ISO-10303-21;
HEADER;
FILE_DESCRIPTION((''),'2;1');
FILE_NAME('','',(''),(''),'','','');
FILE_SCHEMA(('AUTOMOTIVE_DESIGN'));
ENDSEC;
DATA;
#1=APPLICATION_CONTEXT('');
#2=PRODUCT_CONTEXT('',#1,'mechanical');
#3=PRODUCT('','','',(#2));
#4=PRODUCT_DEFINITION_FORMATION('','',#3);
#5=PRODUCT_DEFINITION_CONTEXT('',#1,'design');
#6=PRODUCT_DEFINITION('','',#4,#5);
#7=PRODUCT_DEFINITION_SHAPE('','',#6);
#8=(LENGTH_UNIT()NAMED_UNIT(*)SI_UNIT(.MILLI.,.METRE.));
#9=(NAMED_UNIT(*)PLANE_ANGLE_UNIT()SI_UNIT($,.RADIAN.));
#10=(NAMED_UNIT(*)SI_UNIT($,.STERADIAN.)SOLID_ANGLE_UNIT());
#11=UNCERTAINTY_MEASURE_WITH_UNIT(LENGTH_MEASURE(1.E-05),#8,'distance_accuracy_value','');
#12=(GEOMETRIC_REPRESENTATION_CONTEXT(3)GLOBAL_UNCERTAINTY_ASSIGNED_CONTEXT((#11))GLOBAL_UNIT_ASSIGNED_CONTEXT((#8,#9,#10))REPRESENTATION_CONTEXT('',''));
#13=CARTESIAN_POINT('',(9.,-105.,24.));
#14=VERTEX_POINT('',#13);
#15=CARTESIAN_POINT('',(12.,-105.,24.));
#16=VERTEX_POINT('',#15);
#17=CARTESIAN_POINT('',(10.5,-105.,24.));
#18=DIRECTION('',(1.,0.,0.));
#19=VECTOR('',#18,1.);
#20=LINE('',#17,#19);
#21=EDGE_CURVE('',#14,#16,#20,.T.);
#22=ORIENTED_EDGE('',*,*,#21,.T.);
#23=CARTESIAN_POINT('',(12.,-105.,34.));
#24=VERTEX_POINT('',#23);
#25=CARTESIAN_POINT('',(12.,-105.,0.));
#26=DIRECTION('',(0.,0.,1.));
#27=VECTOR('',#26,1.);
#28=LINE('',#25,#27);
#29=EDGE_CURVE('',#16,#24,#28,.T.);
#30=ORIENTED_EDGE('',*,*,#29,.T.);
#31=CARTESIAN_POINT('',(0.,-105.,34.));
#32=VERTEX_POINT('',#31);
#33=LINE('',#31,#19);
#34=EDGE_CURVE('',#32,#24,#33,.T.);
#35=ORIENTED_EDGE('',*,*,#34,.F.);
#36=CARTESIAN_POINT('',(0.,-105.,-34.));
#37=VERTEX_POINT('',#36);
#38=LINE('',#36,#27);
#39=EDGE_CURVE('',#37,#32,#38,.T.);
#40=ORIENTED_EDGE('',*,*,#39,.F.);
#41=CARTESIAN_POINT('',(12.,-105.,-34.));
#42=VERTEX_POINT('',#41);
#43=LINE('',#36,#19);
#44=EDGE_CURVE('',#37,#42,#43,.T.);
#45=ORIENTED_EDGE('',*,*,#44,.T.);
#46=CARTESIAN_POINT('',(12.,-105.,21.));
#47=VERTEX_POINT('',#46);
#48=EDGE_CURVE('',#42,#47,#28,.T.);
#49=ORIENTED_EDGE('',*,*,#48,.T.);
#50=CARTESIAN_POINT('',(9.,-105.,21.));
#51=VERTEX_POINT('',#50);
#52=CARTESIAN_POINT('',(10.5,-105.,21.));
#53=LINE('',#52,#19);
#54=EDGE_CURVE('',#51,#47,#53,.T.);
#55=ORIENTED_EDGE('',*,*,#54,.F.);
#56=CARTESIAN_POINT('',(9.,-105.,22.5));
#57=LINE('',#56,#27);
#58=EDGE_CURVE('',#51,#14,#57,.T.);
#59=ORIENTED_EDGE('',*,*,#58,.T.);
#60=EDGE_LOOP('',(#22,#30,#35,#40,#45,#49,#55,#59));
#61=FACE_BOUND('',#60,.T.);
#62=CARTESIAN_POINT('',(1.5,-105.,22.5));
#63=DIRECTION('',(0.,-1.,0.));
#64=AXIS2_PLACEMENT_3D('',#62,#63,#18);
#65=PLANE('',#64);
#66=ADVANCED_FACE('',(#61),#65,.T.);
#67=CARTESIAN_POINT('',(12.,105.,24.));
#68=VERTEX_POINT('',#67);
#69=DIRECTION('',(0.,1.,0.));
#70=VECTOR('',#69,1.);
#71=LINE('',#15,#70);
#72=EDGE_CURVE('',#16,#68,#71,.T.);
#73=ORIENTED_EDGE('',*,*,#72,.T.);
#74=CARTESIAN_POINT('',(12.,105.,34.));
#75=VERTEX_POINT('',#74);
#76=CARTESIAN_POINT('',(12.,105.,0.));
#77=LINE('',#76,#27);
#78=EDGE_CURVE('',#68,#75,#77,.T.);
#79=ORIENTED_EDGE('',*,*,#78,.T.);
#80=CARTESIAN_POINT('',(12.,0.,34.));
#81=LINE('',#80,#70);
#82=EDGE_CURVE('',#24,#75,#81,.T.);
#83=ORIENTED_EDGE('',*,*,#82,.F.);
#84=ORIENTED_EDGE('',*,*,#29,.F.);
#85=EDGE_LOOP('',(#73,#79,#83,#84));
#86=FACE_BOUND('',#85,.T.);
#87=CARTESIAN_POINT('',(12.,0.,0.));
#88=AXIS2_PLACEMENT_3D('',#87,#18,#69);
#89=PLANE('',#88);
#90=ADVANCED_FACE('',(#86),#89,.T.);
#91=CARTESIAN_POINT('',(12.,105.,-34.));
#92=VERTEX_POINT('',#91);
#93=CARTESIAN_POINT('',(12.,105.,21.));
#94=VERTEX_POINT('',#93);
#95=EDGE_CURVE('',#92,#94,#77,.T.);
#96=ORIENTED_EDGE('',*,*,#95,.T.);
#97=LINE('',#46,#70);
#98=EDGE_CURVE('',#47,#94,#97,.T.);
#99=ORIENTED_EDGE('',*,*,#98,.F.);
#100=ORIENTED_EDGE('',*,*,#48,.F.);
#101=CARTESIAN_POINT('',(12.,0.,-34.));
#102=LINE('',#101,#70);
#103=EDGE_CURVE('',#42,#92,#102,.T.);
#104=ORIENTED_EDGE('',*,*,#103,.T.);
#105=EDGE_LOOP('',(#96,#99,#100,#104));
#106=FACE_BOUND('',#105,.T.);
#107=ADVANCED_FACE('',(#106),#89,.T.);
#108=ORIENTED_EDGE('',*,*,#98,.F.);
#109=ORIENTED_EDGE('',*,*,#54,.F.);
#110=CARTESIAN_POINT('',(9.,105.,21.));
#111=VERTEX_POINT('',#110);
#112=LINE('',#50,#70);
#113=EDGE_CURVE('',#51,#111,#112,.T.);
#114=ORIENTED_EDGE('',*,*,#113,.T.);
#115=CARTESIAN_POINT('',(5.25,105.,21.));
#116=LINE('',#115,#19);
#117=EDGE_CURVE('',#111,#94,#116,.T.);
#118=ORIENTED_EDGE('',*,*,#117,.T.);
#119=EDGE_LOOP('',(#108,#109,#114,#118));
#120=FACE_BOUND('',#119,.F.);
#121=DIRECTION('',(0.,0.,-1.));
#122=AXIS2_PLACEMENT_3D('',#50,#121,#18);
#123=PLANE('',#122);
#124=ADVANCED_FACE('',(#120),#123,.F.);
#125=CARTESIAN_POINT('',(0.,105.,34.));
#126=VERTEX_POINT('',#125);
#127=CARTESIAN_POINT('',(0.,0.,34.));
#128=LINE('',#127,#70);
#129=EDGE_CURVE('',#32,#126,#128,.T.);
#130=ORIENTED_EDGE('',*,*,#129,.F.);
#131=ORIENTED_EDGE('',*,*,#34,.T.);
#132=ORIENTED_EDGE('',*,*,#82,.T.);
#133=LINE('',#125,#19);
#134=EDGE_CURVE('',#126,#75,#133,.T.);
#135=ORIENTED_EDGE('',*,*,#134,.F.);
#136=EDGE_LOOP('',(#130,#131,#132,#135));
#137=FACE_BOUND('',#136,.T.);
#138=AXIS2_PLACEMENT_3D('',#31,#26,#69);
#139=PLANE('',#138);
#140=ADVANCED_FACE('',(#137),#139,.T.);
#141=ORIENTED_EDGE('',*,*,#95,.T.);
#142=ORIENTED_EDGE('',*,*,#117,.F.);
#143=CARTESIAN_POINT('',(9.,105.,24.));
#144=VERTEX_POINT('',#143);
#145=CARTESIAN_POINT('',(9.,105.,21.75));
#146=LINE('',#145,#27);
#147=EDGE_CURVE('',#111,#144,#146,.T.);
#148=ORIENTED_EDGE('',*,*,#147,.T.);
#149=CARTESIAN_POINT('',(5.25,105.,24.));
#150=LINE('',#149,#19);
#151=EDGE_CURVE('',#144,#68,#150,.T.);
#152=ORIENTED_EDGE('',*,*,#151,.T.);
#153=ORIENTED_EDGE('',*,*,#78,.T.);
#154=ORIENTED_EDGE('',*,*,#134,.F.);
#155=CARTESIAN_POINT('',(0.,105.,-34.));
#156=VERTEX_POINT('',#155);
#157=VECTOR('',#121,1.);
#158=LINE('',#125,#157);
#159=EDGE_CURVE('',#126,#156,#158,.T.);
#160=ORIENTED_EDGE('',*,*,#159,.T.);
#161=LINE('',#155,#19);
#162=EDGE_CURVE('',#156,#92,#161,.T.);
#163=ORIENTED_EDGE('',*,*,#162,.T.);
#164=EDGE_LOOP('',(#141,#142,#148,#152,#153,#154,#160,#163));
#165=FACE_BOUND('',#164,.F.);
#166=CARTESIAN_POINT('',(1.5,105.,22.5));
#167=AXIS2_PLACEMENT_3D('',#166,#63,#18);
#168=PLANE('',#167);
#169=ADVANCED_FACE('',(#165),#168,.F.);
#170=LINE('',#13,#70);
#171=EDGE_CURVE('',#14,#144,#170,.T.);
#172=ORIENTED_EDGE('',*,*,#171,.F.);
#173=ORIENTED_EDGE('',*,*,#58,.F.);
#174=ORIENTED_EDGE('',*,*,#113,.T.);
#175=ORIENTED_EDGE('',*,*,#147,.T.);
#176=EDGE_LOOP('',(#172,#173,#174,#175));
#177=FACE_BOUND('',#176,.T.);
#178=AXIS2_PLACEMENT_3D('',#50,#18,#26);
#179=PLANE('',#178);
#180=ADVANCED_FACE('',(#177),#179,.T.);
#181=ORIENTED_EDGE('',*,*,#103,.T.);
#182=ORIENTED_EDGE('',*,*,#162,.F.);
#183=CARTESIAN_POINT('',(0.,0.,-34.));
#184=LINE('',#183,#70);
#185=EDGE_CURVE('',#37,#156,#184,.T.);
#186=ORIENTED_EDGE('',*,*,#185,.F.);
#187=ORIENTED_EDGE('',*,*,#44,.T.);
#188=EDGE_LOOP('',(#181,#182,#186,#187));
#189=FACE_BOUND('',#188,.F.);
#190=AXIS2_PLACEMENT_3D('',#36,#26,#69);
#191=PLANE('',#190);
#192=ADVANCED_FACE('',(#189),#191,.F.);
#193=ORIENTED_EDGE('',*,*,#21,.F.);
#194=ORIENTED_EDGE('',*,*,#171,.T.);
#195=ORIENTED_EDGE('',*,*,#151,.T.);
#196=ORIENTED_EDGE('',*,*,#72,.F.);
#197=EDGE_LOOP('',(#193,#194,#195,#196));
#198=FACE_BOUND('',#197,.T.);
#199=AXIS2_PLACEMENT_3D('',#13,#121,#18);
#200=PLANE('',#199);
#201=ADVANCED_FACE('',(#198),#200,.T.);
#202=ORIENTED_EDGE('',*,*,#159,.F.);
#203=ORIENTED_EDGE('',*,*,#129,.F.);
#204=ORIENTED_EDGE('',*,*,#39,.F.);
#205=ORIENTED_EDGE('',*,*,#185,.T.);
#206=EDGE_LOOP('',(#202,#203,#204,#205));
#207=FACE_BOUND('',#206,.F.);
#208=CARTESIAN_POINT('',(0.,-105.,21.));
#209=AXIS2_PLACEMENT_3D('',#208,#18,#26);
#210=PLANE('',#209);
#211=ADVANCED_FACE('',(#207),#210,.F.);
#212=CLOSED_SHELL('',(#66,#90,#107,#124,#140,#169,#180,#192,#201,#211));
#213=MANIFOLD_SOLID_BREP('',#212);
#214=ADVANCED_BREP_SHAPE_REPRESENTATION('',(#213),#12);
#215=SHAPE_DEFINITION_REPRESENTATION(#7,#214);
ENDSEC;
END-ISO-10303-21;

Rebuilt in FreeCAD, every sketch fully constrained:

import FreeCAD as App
import Part
import Sketcher

V = App.Vector
Q = App.Units.Quantity


def add_polygon(sketch, points):
    """Adds a closed chain of lines whose ends are joined by coincident constraints."""
    first, n = sketch.GeometryCount, len(points)
    for a, b in zip(points, points[1:] + points[:1]):
        sketch.addGeometry(Part.LineSegment(App.Vector(*a, 0), App.Vector(*b, 0)), False)
    for i in range(n):
        sketch.addConstraint(Sketcher.Constraint("Coincident", first + i, 2, first + (i + 1) % n, 1))

doc = App.newDocument("Part")
params = doc.addObject("Spreadsheet::Sheet", "Params")
for row, (alias, value) in enumerate([
    ("sketch1_width", "210 mm"),
    ("sketch1_height", "68 mm"),
    ("pad1_length", "12 mm"),
    ("sketch2_width", "3 mm"),
    ("pocket1_length", "222000 mm"),
    ("sketch3_width", "3 mm"),
    ("pad2_length", "210 mm"),
    ("sketch4_width", "3 mm"),
    ("pocket2_length", "300 mm"),
], start=1):
    params.set(f"A{row}", alias)
    params.set(f"B{row}", "=" + value)
    params.setAlias(f"B{row}", alias)

body = doc.addObject("PartDesign::Body", "Body")

# Sketch on YZ plane
sketch1 = body.newObject("Sketcher::SketchObject", "Sketch")
sketch1.AttachmentSupport = (doc.getObject("YZ_Plane"), [""])
sketch1.MapMode = "FlatFace"
add_polygon(sketch1, [(-105, 34), (-105, -34), (105, -34), (105, 34)])  # lines 0-3
sketch1.addConstraint([
    Sketcher.Constraint("Vertical", 0),
    Sketcher.Constraint("Horizontal", 1),
    Sketcher.Constraint("Vertical", 2),
    Sketcher.Constraint("Horizontal", 3),
    Sketcher.Constraint("Symmetric", 0, 2, 2, 2, -1, 1),
    Sketcher.Constraint("DistanceX", 1, 1, 1, 2, Q("210 mm")),
    Sketcher.Constraint("DistanceY", 0, 2, 0, 1, Q("68 mm")),
])
sketch1.setExpression("Constraints[9]", "Params.sketch1_width")
sketch1.setExpression("Constraints[10]", "Params.sketch1_height")
pad1 = body.newObject("PartDesign::Pad", "Pad")
pad1.Profile = sketch1
pad1.setExpression("Length", "Params.pad1_length")

# Sketch on XZ plane
sketch2 = body.newObject("Sketcher::SketchObject", "Sketch001")
sketch2.AttachmentSupport = (doc.getObject("XZ_Plane"), [""])
sketch2.MapMode = "FlatFace"
sketch2.AttachmentOffset = App.Placement(V(0, 0, 105), App.Rotation())
add_polygon(sketch2, [(0, 24), (0, 21), (3, 21), (3, 24)])  # lines 0-3
sketch2.addConstraint([
    Sketcher.Constraint("Vertical", 0),
    Sketcher.Constraint("Horizontal", 1),
    Sketcher.Constraint("Vertical", 2),
    Sketcher.Constraint("Horizontal", 3),
    Sketcher.Constraint("PointOnObject", 0, 2, -2),
    Sketcher.Constraint("Equal", 3, 0),
    Sketcher.Constraint("DistanceX", 1, 1, 1, 2, Q("3 mm")),
    Sketcher.Constraint("DistanceY", -1, 1, 0, 2, Q("21 mm")),
])
sketch2.setExpression("Constraints[10]", "Params.sketch2_width")
pocket1 = body.newObject("PartDesign::Pocket", "Pocket")
pocket1.Profile = sketch2
pocket1.setExpression("Length", "Params.pocket1_length")

# Sketch on XZ plane
sketch3 = body.newObject("Sketcher::SketchObject", "Sketch002")
sketch3.AttachmentSupport = (doc.getObject("XZ_Plane"), [""])
sketch3.MapMode = "FlatFace"
sketch3.AttachmentOffset = App.Placement(V(0, 0, 105), App.Rotation())
add_polygon(sketch3, [(0, 24), (0, 21), (3, 21), (3, 24)])  # lines 0-3
sketch3.addConstraint([
    Sketcher.Constraint("Vertical", 0),
    Sketcher.Constraint("Horizontal", 1),
    Sketcher.Constraint("Vertical", 2),
    Sketcher.Constraint("Horizontal", 3),
    Sketcher.Constraint("PointOnObject", 0, 2, -2),
    Sketcher.Constraint("Equal", 3, 0),
    Sketcher.Constraint("DistanceX", 1, 1, 1, 2, Q("3 mm")),
    Sketcher.Constraint("DistanceY", -1, 1, 0, 2, Q("21 mm")),
])
sketch3.setExpression("Constraints[10]", "Params.sketch3_width")
pad2 = body.newObject("PartDesign::Pad", "Pad001")
pad2.Profile = sketch3
pad2.setExpression("Length", "Params.pad2_length")
pad2.Reversed = True

# Sketch on XZ plane
sketch4 = body.newObject("Sketcher::SketchObject", "Sketch003")
sketch4.AttachmentSupport = (doc.getObject("XZ_Plane"), [""])
sketch4.MapMode = "FlatFace"
sketch4.AttachmentOffset = App.Placement(V(0, 0, 105), App.Rotation())
add_polygon(sketch4, [(9, 24), (9, 21), (12, 21), (12, 24)])  # lines 0-3
sketch4.addConstraint([
    Sketcher.Constraint("Vertical", 0),
    Sketcher.Constraint("Horizontal", 1),
    Sketcher.Constraint("Vertical", 2),
    Sketcher.Constraint("Horizontal", 3),
    Sketcher.Constraint("Equal", 3, 0),
    Sketcher.Constraint("DistanceX", 1, 1, 1, 2, Q("3 mm")),
    Sketcher.Constraint("DistanceX", -1, 1, 0, 2, Q("9 mm")),
    Sketcher.Constraint("DistanceY", -1, 1, 0, 2, Q("21 mm")),
])
sketch4.setExpression("Constraints[9]", "Params.sketch4_width")
pocket2 = body.newObject("PartDesign::Pocket", "Pocket001")
pocket2.Profile = sketch4
pocket2.setExpression("Length", "Params.pocket2_length")

doc.recompute()
